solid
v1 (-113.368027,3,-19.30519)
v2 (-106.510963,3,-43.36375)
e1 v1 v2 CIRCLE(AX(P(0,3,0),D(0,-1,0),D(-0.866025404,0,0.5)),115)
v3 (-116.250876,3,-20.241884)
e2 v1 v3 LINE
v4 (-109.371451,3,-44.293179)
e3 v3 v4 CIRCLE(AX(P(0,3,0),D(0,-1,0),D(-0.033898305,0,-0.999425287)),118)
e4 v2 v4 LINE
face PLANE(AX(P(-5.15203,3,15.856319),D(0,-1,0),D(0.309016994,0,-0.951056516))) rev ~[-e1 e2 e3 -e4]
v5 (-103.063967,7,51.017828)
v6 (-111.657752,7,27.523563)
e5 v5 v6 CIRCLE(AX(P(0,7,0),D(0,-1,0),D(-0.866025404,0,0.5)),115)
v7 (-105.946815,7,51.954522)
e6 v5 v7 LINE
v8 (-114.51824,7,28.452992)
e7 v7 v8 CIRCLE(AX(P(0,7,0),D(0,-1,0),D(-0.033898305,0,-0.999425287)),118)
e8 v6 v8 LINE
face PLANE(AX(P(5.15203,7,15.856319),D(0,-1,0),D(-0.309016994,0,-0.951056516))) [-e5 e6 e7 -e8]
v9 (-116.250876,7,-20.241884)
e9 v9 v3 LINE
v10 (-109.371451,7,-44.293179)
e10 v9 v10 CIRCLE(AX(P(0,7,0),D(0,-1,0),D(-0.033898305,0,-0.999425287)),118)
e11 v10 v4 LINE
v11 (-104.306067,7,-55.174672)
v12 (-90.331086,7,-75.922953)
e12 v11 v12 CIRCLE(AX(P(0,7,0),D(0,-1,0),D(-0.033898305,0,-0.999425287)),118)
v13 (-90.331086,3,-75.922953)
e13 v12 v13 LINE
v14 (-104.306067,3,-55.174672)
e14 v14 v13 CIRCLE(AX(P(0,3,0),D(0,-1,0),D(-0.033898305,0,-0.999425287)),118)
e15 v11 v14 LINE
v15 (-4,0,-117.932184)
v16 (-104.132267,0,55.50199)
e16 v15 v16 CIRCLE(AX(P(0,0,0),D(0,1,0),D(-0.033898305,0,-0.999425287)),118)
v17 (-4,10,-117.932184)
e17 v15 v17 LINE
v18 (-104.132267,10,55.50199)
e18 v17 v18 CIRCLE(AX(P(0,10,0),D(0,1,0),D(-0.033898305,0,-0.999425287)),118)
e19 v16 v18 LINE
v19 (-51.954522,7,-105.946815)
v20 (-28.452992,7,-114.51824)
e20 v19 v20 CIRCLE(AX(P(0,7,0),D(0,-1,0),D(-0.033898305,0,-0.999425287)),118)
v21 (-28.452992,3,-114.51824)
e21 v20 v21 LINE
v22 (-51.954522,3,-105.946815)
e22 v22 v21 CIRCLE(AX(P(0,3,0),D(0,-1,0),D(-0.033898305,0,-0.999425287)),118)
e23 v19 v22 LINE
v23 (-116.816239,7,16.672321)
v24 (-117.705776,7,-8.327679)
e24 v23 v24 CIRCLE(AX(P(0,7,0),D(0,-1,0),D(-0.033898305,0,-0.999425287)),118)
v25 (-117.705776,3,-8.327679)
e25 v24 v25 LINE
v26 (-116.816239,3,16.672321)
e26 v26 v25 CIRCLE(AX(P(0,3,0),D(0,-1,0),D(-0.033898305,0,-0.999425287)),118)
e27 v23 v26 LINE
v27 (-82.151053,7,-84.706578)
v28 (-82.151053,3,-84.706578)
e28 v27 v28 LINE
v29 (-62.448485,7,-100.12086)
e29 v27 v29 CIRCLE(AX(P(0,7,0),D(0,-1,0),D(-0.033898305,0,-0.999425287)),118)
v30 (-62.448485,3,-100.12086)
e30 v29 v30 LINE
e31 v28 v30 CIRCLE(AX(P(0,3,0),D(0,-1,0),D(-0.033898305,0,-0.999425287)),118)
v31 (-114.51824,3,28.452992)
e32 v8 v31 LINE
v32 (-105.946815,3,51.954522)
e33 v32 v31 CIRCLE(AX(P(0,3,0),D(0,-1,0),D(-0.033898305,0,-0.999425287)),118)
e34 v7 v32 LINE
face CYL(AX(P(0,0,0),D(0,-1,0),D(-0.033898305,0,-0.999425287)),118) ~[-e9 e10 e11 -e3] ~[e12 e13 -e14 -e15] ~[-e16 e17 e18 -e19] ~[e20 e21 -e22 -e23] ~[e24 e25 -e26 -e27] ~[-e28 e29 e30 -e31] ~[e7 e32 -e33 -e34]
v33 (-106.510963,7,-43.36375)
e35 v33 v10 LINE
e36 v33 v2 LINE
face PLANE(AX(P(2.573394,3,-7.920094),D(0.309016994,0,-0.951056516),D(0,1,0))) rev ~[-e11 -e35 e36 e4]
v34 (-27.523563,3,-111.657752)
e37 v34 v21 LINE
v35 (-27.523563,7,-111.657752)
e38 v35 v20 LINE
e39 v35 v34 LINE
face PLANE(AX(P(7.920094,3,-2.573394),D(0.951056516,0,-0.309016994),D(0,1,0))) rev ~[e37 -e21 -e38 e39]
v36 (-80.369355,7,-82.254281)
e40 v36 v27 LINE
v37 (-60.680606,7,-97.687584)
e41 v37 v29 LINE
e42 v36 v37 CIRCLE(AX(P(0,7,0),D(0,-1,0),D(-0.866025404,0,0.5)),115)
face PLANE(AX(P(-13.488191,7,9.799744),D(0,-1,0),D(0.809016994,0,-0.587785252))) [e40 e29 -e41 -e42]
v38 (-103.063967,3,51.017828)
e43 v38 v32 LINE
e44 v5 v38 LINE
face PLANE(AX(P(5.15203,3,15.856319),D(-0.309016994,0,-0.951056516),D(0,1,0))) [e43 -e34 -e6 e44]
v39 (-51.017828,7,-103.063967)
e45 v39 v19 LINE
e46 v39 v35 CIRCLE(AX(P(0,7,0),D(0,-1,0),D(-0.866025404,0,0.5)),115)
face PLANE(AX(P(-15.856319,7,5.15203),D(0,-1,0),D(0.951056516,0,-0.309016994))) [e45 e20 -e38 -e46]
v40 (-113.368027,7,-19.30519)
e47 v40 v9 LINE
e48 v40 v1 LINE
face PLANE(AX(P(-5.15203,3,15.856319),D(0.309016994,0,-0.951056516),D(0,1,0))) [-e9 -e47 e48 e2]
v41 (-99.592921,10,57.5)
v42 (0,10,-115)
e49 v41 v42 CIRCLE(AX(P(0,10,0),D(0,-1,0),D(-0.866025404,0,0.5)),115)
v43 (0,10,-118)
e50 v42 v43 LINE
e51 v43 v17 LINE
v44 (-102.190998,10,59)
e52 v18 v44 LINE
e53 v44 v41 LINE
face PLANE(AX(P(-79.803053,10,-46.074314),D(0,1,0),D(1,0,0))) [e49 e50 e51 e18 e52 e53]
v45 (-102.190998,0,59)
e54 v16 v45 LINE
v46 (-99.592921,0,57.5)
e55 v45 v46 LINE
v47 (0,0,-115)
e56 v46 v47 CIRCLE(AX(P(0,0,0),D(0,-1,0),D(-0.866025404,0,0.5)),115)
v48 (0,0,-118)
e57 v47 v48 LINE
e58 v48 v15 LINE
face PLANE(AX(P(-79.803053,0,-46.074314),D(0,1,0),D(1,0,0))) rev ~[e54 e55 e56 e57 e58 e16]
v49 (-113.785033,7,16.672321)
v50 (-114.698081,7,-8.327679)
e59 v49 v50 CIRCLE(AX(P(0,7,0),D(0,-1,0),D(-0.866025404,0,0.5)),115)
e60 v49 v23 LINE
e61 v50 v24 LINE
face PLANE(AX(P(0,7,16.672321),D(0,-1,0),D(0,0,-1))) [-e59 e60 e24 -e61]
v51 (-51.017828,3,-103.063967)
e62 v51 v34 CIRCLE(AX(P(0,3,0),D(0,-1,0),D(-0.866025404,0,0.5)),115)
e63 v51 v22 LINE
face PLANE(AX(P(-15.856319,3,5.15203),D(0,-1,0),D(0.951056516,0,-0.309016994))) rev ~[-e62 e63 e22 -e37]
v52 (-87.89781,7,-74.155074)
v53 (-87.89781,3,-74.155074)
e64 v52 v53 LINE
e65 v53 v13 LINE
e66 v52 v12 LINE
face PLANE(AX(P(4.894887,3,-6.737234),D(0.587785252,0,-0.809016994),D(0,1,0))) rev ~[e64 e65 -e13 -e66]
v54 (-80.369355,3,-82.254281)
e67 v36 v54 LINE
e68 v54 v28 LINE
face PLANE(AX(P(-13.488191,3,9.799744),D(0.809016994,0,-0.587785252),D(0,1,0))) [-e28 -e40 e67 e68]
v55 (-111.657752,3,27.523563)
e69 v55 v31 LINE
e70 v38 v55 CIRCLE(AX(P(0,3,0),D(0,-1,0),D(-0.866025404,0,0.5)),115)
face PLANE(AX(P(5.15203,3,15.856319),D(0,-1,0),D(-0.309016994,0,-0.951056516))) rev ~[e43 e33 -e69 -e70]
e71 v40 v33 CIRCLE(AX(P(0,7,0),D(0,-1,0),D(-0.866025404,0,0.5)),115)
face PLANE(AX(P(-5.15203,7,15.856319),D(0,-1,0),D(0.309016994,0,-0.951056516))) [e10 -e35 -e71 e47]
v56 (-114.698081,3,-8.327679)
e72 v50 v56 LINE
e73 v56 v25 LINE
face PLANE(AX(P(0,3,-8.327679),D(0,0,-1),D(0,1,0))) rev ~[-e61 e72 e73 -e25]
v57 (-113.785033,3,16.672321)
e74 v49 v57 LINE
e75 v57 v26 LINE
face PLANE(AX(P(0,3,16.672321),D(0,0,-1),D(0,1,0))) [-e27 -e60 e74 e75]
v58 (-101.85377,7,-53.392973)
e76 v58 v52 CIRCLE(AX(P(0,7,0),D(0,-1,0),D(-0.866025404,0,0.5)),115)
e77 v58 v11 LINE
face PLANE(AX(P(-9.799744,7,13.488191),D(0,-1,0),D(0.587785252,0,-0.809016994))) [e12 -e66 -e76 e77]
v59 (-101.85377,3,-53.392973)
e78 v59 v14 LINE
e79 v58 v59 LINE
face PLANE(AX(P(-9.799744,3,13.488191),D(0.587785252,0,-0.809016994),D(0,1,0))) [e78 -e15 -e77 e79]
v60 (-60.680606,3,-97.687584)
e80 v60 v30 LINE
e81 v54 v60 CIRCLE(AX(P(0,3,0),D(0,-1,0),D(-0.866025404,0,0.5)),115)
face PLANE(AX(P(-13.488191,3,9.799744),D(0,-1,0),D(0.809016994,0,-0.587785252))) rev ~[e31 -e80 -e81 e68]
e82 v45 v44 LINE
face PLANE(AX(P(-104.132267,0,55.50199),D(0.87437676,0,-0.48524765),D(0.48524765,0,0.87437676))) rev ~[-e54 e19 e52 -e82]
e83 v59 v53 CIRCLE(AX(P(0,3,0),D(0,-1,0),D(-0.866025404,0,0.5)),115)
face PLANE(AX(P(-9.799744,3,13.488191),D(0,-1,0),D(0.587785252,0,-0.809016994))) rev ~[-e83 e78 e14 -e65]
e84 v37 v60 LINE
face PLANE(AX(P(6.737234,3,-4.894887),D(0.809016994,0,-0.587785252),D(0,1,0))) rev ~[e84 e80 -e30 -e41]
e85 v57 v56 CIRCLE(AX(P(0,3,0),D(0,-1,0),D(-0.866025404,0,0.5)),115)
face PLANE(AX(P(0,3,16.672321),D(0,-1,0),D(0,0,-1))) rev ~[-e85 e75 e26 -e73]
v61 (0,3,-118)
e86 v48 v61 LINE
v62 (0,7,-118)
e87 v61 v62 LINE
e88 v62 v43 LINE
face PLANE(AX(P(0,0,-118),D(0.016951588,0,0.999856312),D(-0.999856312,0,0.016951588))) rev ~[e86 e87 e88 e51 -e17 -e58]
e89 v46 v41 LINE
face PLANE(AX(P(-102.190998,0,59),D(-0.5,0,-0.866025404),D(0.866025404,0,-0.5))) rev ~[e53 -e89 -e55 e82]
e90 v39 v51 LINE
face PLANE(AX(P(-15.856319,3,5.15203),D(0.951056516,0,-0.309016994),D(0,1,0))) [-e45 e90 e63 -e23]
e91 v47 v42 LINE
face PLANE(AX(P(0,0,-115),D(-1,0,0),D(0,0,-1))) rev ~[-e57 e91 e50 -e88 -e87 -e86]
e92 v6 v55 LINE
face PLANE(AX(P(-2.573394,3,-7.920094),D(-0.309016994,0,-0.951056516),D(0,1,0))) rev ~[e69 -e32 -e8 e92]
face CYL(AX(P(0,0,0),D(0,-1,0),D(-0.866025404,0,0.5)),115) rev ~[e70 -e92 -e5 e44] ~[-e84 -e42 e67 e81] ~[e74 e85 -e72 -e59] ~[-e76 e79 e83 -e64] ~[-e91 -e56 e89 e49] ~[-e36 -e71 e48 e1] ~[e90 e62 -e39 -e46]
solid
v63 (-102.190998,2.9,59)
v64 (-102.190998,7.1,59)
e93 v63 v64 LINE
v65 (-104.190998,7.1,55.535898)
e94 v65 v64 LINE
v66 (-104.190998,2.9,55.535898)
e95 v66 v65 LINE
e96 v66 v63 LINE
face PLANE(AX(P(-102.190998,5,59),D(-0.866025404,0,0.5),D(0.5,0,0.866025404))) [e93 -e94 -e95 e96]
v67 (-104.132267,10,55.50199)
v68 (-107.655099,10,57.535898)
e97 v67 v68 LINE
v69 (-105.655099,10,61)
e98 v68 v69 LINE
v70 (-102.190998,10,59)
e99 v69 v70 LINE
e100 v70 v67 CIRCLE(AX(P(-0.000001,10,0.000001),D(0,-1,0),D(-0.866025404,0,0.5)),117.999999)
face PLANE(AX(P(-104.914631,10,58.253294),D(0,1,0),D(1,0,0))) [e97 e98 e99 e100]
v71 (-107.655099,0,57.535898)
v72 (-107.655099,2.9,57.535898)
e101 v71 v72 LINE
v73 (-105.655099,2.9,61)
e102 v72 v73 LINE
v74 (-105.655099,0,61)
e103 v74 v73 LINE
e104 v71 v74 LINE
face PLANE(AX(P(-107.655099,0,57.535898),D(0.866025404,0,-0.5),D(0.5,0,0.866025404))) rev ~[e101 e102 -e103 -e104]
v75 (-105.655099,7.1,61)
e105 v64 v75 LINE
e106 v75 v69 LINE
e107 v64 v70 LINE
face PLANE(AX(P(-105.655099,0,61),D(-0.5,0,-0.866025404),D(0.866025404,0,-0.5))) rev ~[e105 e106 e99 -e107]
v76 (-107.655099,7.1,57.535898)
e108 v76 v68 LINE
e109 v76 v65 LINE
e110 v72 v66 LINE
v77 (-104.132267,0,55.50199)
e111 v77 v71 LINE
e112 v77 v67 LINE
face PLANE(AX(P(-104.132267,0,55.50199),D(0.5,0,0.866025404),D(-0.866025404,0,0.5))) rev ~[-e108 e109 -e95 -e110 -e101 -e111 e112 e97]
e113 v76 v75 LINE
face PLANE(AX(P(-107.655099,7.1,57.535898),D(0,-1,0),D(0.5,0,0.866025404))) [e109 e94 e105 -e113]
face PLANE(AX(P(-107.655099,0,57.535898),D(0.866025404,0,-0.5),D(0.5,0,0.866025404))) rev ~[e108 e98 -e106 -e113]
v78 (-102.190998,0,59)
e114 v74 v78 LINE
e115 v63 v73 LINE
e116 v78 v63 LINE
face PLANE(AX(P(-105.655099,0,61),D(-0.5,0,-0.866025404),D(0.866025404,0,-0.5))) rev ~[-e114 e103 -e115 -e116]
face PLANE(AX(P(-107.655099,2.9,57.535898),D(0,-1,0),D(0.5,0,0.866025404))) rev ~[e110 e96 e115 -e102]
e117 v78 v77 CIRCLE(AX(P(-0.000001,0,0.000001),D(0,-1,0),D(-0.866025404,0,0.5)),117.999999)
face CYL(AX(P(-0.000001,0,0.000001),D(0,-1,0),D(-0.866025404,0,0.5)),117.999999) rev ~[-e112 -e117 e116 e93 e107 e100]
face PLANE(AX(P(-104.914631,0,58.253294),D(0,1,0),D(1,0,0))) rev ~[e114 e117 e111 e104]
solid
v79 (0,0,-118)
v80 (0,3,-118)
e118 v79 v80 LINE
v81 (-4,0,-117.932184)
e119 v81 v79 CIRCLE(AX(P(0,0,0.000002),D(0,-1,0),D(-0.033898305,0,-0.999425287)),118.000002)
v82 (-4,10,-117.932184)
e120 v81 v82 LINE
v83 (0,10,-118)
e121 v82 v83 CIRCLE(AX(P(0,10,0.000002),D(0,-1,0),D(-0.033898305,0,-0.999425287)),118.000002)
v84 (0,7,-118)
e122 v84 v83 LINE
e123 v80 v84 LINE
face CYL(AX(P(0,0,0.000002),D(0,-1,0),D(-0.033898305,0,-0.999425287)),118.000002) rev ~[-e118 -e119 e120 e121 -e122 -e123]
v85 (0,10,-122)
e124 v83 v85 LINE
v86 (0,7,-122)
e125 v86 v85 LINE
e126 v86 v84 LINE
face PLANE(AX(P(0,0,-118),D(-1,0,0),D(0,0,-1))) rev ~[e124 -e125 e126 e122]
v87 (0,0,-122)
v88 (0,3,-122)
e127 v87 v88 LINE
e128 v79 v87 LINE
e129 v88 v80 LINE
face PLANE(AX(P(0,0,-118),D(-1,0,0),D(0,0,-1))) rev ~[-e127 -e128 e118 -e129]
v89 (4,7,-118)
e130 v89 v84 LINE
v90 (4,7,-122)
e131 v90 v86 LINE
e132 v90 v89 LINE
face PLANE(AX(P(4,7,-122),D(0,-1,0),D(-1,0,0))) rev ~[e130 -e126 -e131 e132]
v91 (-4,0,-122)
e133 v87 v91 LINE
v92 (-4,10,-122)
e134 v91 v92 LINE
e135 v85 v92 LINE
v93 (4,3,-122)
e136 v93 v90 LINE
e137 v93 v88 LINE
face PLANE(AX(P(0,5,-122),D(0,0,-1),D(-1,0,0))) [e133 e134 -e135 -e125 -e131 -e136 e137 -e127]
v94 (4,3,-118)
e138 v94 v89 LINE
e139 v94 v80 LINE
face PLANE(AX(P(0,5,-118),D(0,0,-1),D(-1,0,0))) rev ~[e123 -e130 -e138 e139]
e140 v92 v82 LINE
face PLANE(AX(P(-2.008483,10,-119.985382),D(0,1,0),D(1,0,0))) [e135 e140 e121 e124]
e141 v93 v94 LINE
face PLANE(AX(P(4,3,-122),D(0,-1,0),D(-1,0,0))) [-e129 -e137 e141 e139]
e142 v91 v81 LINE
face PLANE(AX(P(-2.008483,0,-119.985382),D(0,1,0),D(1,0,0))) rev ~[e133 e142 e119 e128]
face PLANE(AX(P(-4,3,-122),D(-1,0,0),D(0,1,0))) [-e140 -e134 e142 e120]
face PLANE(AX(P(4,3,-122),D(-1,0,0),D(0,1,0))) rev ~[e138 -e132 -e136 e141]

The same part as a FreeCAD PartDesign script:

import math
import FreeCAD as App
import Part
import Sketcher

V = App.Vector
Q = App.Units.Quantity


def add_polygon(sketch, points):
    """Adds a closed chain of lines whose ends are joined by coincident constraints."""
    first, n = sketch.GeometryCount, len(points)
    for a, b in zip(points, points[1:] + points[:1]):
        sketch.addGeometry(Part.LineSegment(App.Vector(*a, 0), App.Vector(*b, 0)), False)
    for i in range(n):
        sketch.addConstraint(Sketcher.Constraint("Coincident", first + i, 2, first + (i + 1) % n, 1))

doc = App.newDocument("Part")
params = doc.addObject("Spreadsheet::Sheet", "Params")
for row, (alias, value) in enumerate([
    ("sketch1_radius", "118 mm"),
    ("sketch1_radius2", "115 mm"),
    ("sketch1_height", "3 mm"),
    ("sketch1_length", "3 mm"),
    ("pad1_length", "10 mm"),
    ("sketch2_radius", "118.000002 mm"),
    ("sketch2_width", "4 mm"),
    ("pad2_length", "10 mm"),
    ("sketch3_radius", "117.999999 mm"),
    ("sketch3_length", "4 mm"),
    ("pad3_length", "10 mm"),
    ("sketch4_width", "8 mm"),
    ("sketch4_height", "4.2 mm"),
    ("pocket1_length", "4 mm"),
    ("sketch5_width", "8 mm"),
    ("sketch5_height", "4 mm"),
    ("pad4_length", "4 mm"),
    ("sketch6_width", "4 mm"),
    ("sketch6_height", "25 mm"),
], start=1):
    params.set(f"A{row}", alias)
    params.set(f"B{row}", "=" + value)
    params.setAlias(f"B{row}", alias)

body = doc.addObject("PartDesign::Body", "Body")

# Sketch on XZ plane
sketch1 = body.newObject("Sketcher::SketchObject", "Sketch")
sketch1.AttachmentSupport = (doc.getObject("XZ_Plane"), [""])
sketch1.MapMode = "FlatFace"
sketch1.addGeometry([
    Part.LineSegment(V(0, -115, 0), V(0, -118, 0)),  # 0
    Part.LineSegment(V(0, -118, 0), V(-4, -117.932184, 0)),  # 1
    Part.ArcOfCircle(Part.Circle(V(0, 0, 0), V(0, 0, 1), 118), math.radians(151.942602), math.radians(268.057398)),  # 2
    Part.LineSegment(V(-104.132267, 55.50199, 0), V(-102.190998, 59, 0)),  # 3
    Part.LineSegment(V(-102.190998, 59, 0), V(-99.592921, 57.5, 0)),  # 4
    Part.ArcOfCircle(Part.Circle(V(0, 0, 0), V(0, 0, 1), 115), math.radians(150), math.radians(270)),  # 5
], False)
sketch1.addConstraint([
    Sketcher.Constraint("Coincident", 0, 2, 1, 1),
    Sketcher.Constraint("Coincident", 1, 2, 2, 2),
    Sketcher.Constraint("Coincident", 2, 1, 3, 1),
    Sketcher.Constraint("Coincident", 3, 2, 4, 1),
    Sketcher.Constraint("Coincident", 4, 2, 5, 1),
    Sketcher.Constraint("Coincident", 5, 2, 0, 1),
    Sketcher.Constraint("Vertical", 0),
    Sketcher.Constraint("Coincident", 2, 3, -1, 1),
    Sketcher.Constraint("Coincident", 5, 3, -1, 1),
    Sketcher.Constraint("PointOnObject", 0, 2, -2),
    Sketcher.Constraint("Equal", 1, 3),
    Sketcher.Constraint("Radius", 2, 118.0),
    Sketcher.Constraint("Radius", 5, 115.0),
    Sketcher.Constraint("DistanceY", 0, 2, 0, 1, 3.0),
    Sketcher.Constraint("Angle", 4, Q("-30 deg")),
    Sketcher.Constraint("Distance", 4, 3.0),
    Sketcher.Constraint("DistanceX", 1, 2, -1, 1, 4.0),
    Sketcher.Constraint("DistanceY", -1, 1, 3, 2, 59.0),
])
sketch1.setExpression("Constraints[11]", "Params.sketch1_radius")
sketch1.setExpression("Constraints[12]", "Params.sketch1_radius2")
sketch1.setExpression("Constraints[13]", "Params.sketch1_height")
sketch1.setExpression("Constraints[15]", "Params.sketch1_length")
pad1 = body.newObject("PartDesign::Pad", "Pad")
pad1.Profile = sketch1
pad1.setExpression("Length", "Params.pad1_length")
pad1.Reversed = True
body2 = doc.addObject("PartDesign::Body", "Body001")

# Sketch on XZ plane
sketch2 = body2.newObject("Sketcher::SketchObject", "Sketch001")
sketch2.AttachmentSupport = (doc.getObject("XZ_Plane001"), [""])
sketch2.MapMode = "FlatFace"
sketch2.addGeometry([
    Part.ArcOfCircle(Part.Circle(V(0, 0.000002, 0), V(0, 0, 1), 118.000002), math.radians(-91.942602), math.radians(-90)),
    Part.LineSegment(V(0, -118, 0), V(0, -122, 0)),
    Part.LineSegment(V(0, -122, 0), V(-4, -122, 0)),
    Part.LineSegment(V(-4, -122, 0), V(-4, -117.932184, 0)),
], False)
sketch2.addConstraint([
    Sketcher.Constraint("Coincident", 0, 2, 1, 1),
    Sketcher.Constraint("Coincident", 1, 2, 2, 1),
    Sketcher.Constraint("Coincident", 2, 2, 3, 1),
    Sketcher.Constraint("Coincident", 3, 2, 0, 1),
    Sketcher.Constraint("Vertical", 1),
    Sketcher.Constraint("Horizontal", 2),
    Sketcher.Constraint("Vertical", 3),
    Sketcher.Constraint("Coincident", 0, 3, -1, 1),
    Sketcher.Constraint("PointOnObject", 0, 2, -2),
    Sketcher.Constraint("Equal", 2, 1),
    Sketcher.Constraint("Radius", 0, 118.000002),
    Sketcher.Constraint("DistanceX", 2, 2, 2, 1, 4.0),
])
sketch2.setExpression("Constraints[10]", "Params.sketch2_radius")
sketch2.setExpression("Constraints[11]", "Params.sketch2_width")
pad2 = body2.newObject("PartDesign::Pad", "Pad001")
pad2.Profile = sketch2
pad2.setExpression("Length", "Params.pad2_length")
pad2.Reversed = True
body3 = doc.addObject("PartDesign::Body", "Body002")

# Sketch on XZ plane
sketch3 = body3.newObject("Sketcher::SketchObject", "Sketch002")
sketch3.AttachmentSupport = (doc.getObject("XZ_Plane002"), [""])
sketch3.MapMode = "FlatFace"
sketch3.addGeometry([
    Part.ArcOfCircle(Part.Circle(V(-0.000001, 0.000001, 0), V(0, 0, 1), 117.999999), math.radians(150), math.radians(151.942602)),
    Part.LineSegment(V(-104.132267, 55.50199, 0), V(-107.655099, 57.535898, 0)),
    Part.LineSegment(V(-107.655099, 57.535898, 0), V(-105.655099, 61, 0)),
    Part.LineSegment(V(-105.655099, 61, 0), V(-102.190998, 59, 0)),
], False)
sketch3.addConstraint([
    Sketcher.Constraint("Coincident", 0, 2, 1, 1),
    Sketcher.Constraint("Coincident", 1, 2, 2, 1),
    Sketcher.Constraint("Coincident", 2, 2, 3, 1),
    Sketcher.Constraint("Coincident", 3, 2, 0, 1),
    Sketcher.Constraint("Coincident", 0, 3, -1, 1),
    Sketcher.Constraint("Perpendicular", 1, 2),
    Sketcher.Constraint("Perpendicular", 2, 3),
    Sketcher.Constraint("Equal", 2, 3),
    Sketcher.Constraint("Radius", 0, 117.999999),
    Sketcher.Constraint("Angle", 1, Q("150 deg")),
    Sketcher.Constraint("Distance", 2, 4.0),
    Sketcher.Constraint("DistanceY", -1, 1, 2, 2, 61.0),
])
sketch3.setExpression("Constraints[8]", "Params.sketch3_radius")
sketch3.setExpression("Constraints[10]", "Params.sketch3_length")
pad3 = body3.newObject("PartDesign::Pad", "Pad002")
pad3.Profile = sketch3
pad3.setExpression("Length", "Params.pad3_length")
pad3.Reversed = True

# Sketch on an angled plane
sketch4 = body3.newObject("Sketcher::SketchObject", "Sketch003")
sketch4.Placement = App.Placement(V(-105.655099, 0, 61), App.Rotation(V(0.5, 0, 0.866025404), V(0, 1, 0), V(-0.866025404, 0, 0.5), "ZXY"))
add_polygon(sketch4, [(-4, 7.1), (-4, 2.9), (4, 2.9), (4, 7.1)])  # lines 0-3
sketch4.addConstraint([
    Sketcher.Constraint("Vertical", 0),
    Sketcher.Constraint("Horizontal", 1),
    Sketcher.Constraint("Vertical", 2),
    Sketcher.Constraint("Horizontal", 3),
    Sketcher.Constraint("DistanceX", 1, 1, 1, 2, 8.0),
    Sketcher.Constraint("DistanceY", 0, 2, 0, 1, 4.2),
    Sketcher.Constraint("DistanceX", 0, 2, -1, 1, 4.0),
    Sketcher.Constraint("DistanceY", -1, 1, 0, 2, 2.9),
])
sketch4.setExpression("Constraints[8]", "Params.sketch4_width")
sketch4.setExpression("Constraints[9]", "Params.sketch4_height")
pocket1 = body3.newObject("PartDesign::Pocket", "Pocket")
pocket1.Profile = sketch4
pocket1.setExpression("Length", "Params.pocket1_length")
body.AllowCompound = True
doc.recompute()

boolean = body.newObject("PartDesign::Boolean", "Boolean")
boolean.Type = "Fuse"
boolean.addObjects([body2])

# Sketch on XY plane
sketch5 = body.newObject("Sketcher::SketchObject", "Sketch004")
sketch5.AttachmentSupport = (doc.getObject("XY_Plane"), [""])
sketch5.MapMode = "FlatFace"
sketch5.AttachmentOffset = App.Placement(V(0, 0, -122), App.Rotation())
add_polygon(sketch5, [(4, 7), (4, 3), (-4, 3), (-4, 7)])  # lines 0-3
sketch5.addConstraint([
    Sketcher.Constraint("Vertical", 0),
    Sketcher.Constraint("Horizontal", 1),
    Sketcher.Constraint("Vertical", 2),
    Sketcher.Constraint("Horizontal", 3),
    Sketcher.Constraint("DistanceX", 1, 2, 1, 1, 8.0),
    Sketcher.Constraint("DistanceY", 0, 2, 0, 1, 4.0),
    Sketcher.Constraint("DistanceX", -1, 1, 0, 2, 4.0),
    Sketcher.Constraint("DistanceY", -1, 1, 0, 2, 3.0),
])
sketch5.setExpression("Constraints[8]", "Params.sketch5_width")
sketch5.setExpression("Constraints[9]", "Params.sketch5_height")
pad4 = body.newObject("PartDesign::Pad", "Pad003")
pad4.Profile = sketch5
pad4.setExpression("Length", "Params.pad4_length")

# Sketch on YZ plane
sketch6 = body.newObject("Sketcher::SketchObject", "Sketch005")
sketch6.AttachmentSupport = (doc.getObject("YZ_Plane"), [""])
sketch6.MapMode = "FlatFace"
add_polygon(sketch6, [(7, 16.672321), (3, 16.672321), (3, -8.327679), (7, -8.327679)])  # lines 0-3
sketch6.addConstraint([
    Sketcher.Constraint("Horizontal", 0),
    Sketcher.Constraint("Vertical", 1),
    Sketcher.Constraint("Horizontal", 2),
    Sketcher.Constraint("Vertical", 3),
    Sketcher.Constraint("DistanceX", 0, 2, 0, 1, 4.0),
    Sketcher.Constraint("DistanceY", 1, 2, 1, 1, 25.0),
    Sketcher.Constraint("DistanceX", -1, 1, 0, 2, 3.0),
    Sketcher.Constraint("DistanceY", -1, 1, 0, 2, 16.672321),
])
sketch6.setExpression("Constraints[8]", "Params.sketch6_width")
sketch6.setExpression("Constraints[9]", "Params.sketch6_height")
pocket2 = body.newObject("PartDesign::Pocket", "Pocket001")
pocket2.Profile = sketch6
pocket2.Type = "ThroughAll"
doc.recompute()

polarpattern = body.newObject("PartDesign::PolarPattern", "PolarPattern")
polarpattern.Originals = [pocket2]
polarpattern.Axis = (doc.getObject("Y_Axis"), [""])
polarpattern.Angle = 72
polarpattern.Occurrences = 5
polarpattern.Reversed = True
body.Tip = polarpattern
doc.recompute()

polarpattern2 = body.newObject("PartDesign::PolarPattern", "PolarPattern001")
polarpattern2.Originals = [pocket2]
polarpattern2.Axis = (doc.getObject("Y_Axis"), [""])
polarpattern2.Angle = 72
polarpattern2.Occurrences = 5
body.Tip = polarpattern2

doc.recompute()
